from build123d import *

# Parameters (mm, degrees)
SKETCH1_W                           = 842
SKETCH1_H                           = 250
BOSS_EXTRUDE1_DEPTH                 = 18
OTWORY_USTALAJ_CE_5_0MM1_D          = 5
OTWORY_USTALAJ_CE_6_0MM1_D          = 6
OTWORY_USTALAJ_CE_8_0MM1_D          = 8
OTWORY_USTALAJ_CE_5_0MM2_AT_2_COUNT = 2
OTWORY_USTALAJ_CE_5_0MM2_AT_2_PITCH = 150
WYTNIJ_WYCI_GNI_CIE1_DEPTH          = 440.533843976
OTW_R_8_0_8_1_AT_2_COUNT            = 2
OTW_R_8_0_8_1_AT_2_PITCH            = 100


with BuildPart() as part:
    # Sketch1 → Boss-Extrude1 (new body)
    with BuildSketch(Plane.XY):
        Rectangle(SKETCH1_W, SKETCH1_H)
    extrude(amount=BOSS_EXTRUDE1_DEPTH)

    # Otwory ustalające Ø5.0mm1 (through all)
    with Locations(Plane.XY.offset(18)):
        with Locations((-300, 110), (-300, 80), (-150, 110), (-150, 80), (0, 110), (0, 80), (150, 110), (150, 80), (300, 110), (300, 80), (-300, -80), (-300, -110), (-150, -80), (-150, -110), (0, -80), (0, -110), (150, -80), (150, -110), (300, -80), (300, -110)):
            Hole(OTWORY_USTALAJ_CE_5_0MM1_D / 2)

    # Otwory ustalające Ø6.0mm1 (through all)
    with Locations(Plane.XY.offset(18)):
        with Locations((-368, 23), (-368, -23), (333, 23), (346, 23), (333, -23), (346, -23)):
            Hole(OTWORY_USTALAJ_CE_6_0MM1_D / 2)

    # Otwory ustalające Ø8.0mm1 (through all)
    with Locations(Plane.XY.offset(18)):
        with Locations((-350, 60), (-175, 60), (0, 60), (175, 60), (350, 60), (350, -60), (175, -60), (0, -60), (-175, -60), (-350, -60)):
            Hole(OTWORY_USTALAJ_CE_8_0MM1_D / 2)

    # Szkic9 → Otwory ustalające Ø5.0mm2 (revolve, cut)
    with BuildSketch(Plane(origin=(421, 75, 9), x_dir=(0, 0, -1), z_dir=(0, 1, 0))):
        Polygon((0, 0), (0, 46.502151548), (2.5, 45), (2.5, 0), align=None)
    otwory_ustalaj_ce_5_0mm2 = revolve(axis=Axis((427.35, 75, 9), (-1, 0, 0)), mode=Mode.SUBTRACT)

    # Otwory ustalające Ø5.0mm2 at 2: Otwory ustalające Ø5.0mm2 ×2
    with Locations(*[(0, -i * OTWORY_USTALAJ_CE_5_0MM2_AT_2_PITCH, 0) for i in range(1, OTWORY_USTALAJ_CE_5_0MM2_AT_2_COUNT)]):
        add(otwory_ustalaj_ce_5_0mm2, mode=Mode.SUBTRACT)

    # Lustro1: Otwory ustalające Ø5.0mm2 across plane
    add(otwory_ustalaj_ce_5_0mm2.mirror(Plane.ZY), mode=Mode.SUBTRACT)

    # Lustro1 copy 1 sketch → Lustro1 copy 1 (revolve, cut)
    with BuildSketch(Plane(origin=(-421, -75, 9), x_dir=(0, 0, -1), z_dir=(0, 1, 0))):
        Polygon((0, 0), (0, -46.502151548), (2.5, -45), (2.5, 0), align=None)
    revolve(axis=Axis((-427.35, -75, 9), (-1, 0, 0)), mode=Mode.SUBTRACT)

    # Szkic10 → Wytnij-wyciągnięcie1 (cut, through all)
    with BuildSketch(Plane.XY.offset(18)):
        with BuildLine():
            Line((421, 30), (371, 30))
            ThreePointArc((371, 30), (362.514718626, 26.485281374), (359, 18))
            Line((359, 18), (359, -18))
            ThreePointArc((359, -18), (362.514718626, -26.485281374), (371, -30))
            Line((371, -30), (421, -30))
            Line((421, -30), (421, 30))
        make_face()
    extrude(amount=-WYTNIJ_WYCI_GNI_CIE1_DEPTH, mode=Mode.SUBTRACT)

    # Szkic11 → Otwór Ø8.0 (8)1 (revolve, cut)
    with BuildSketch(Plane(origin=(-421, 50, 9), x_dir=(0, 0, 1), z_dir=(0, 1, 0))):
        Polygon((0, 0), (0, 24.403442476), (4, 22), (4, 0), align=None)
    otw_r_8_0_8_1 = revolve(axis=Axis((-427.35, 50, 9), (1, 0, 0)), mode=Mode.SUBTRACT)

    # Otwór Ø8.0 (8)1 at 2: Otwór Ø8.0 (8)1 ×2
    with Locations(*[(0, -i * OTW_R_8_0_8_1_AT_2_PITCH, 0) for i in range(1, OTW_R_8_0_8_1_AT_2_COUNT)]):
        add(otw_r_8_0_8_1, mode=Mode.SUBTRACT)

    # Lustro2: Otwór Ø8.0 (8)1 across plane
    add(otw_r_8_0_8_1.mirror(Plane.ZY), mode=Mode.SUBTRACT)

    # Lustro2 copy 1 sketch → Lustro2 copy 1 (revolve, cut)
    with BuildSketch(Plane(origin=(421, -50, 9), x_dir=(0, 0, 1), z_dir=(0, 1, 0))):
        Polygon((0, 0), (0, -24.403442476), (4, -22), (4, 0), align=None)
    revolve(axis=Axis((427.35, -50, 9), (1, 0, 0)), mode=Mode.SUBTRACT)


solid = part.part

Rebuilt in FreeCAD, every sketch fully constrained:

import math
import FreeCAD as App
import Part
import Sketcher
from FreeCAD import Vector
Q = App.Units.Quantity


def add_polygon(sketch, points):
    """Adds a closed chain of lines whose ends are joined by coincident constraints."""
    first, n = sketch.GeometryCount, len(points)
    for a, b in zip(points, points[1:] + points[:1]):
        sketch.addGeometry(Part.LineSegment(App.Vector(*a, 0), App.Vector(*b, 0)), False)
    for i in range(n):
        sketch.addConstraint(Sketcher.Constraint("Coincident", first + i, 2, first + (i + 1) % n, 1))

doc = App.newDocument("Part")
body = doc.addObject("PartDesign::Body", "Body")

# Sketch on XY plane
sketch1 = body.newObject("Sketcher::SketchObject", "Sketch")
sketch1.AttachmentSupport = (doc.getObject("XY_Plane"), [""])
sketch1.MapMode = "FlatFace"
add_polygon(sketch1, [(-421, 125), (-421, -125), (421, -125), (421, 125)])  # lines 0-3
sketch1.addConstraint(Sketcher.Constraint("Vertical", 0))
sketch1.addConstraint(Sketcher.Constraint("Horizontal", 1))
sketch1.addConstraint(Sketcher.Constraint("Vertical", 2))
sketch1.addConstraint(Sketcher.Constraint("Horizontal", 3))
sketch1.addConstraint(Sketcher.Constraint("Symmetric", 0, 2, 2, 2, -1, 1))
sketch1.addConstraint(Sketcher.Constraint("DistanceX", 1, 1, 1, 2, 842.0))
sketch1.addConstraint(Sketcher.Constraint("DistanceY", 0, 2, 0, 1, 250.0))
pad1 = body.newObject("PartDesign::Pad", "Pad")
pad1.Profile = sketch1
pad1.Length = 18

# Sketch on XY plane
sketch2 = body.newObject("Sketcher::SketchObject", "Sketch001")
sketch2.AttachmentSupport = (doc.getObject("XY_Plane"), [""])
sketch2.MapMode = "FlatFace"
sketch2.AttachmentOffset = App.Placement(Vector(0, 0, 18), App.Rotation())
sketch2.addGeometry(Part.Circle(Vector(-300, 110, 0), Vector(0, 0, 1), 2.5), False)
sketch2.addGeometry(Part.Circle(Vector(-300, 80, 0), Vector(0, 0, 1), 2.5), False)
sketch2.addGeometry(Part.Circle(Vector(-150, 110, 0), Vector(0, 0, 1), 2.5), False)
sketch2.addGeometry(Part.Circle(Vector(-150, 80, 0), Vector(0, 0, 1), 2.5), False)
sketch2.addGeometry(Part.Circle(Vector(0, 110, 0), Vector(0, 0, 1), 2.5), False)
sketch2.addGeometry(Part.Circle(Vector(0, 80, 0), Vector(0, 0, 1), 2.5), False)
sketch2.addGeometry(Part.Circle(Vector(150, 110, 0), Vector(0, 0, 1), 2.5), False)
sketch2.addGeometry(Part.Circle(Vector(150, 80, 0), Vector(0, 0, 1), 2.5), False)
sketch2.addGeometry(Part.Circle(Vector(300, 110, 0), Vector(0, 0, 1), 2.5), False)
sketch2.addGeometry(Part.Circle(Vector(300, 80, 0), Vector(0, 0, 1), 2.5), False)
sketch2.addGeometry(Part.Circle(Vector(-300, -80, 0), Vector(0, 0, 1), 2.5), False)
sketch2.addGeometry(Part.Circle(Vector(-300, -110, 0), Vector(0, 0, 1), 2.5), False)
sketch2.addGeometry(Part.Circle(Vector(-150, -80, 0), Vector(0, 0, 1), 2.5), False)
sketch2.addGeometry(Part.Circle(Vector(-150, -110, 0), Vector(0, 0, 1), 2.5), False)
sketch2.addGeometry(Part.Circle(Vector(0, -80, 0), Vector(0, 0, 1), 2.5), False)
sketch2.addGeometry(Part.Circle(Vector(0, -110, 0), Vector(0, 0, 1), 2.5), False)
sketch2.addGeometry(Part.Circle(Vector(150, -80, 0), Vector(0, 0, 1), 2.5), False)
sketch2.addGeometry(Part.Circle(Vector(150, -110, 0), Vector(0, 0, 1), 2.5), False)
sketch2.addGeometry(Part.Circle(Vector(300, -80, 0), Vector(0, 0, 1), 2.5), False)
sketch2.addGeometry(Part.Circle(Vector(300, -110, 0), Vector(0, 0, 1), 2.5), False)
sketch2.addConstraint(Sketcher.Constraint("Equal", 0, 1))
sketch2.addConstraint(Sketcher.Constraint("Equal", 1, 2))
sketch2.addConstraint(Sketcher.Constraint("Equal", 2, 3))
sketch2.addConstraint(Sketcher.Constraint("Equal", 3, 4))
sketch2.addConstraint(Sketcher.Constraint("Equal", 4, 5))
sketch2.addConstraint(Sketcher.Constraint("Equal", 5, 6))
sketch2.addConstraint(Sketcher.Constraint("Equal", 6, 7))
sketch2.addConstraint(Sketcher.Constraint("Equal", 7, 8))
sketch2.addConstraint(Sketcher.Constraint("Equal", 8, 9))
sketch2.addConstraint(Sketcher.Constraint("Equal", 9, 10))
sketch2.addConstraint(Sketcher.Constraint("Equal", 10, 11))
sketch2.addConstraint(Sketcher.Constraint("Equal", 11, 12))
sketch2.addConstraint(Sketcher.Constraint("Equal", 12, 13))
sketch2.addConstraint(Sketcher.Constraint("Equal", 13, 14))
sketch2.addConstraint(Sketcher.Constraint("Equal", 14, 15))
sketch2.addConstraint(Sketcher.Constraint("Equal", 15, 16))
sketch2.addConstraint(Sketcher.Constraint("Equal", 16, 17))
sketch2.addConstraint(Sketcher.Constraint("Equal", 17, 18))
sketch2.addConstraint(Sketcher.Constraint("Equal", 18, 19))
sketch2.addConstraint(Sketcher.Constraint("Symmetric", 9, 3, 10, 3, -1, 1))
sketch2.addConstraint(Sketcher.Constraint("Symmetric", 8, 3, 11, 3, -1, 1))
sketch2.addConstraint(Sketcher.Constraint("Symmetric", 7, 3, 12, 3, -1, 1))
sketch2.addConstraint(Sketcher.Constraint("Symmetric", 6, 3, 13, 3, -1, 1))
sketch2.addConstraint(Sketcher.Constraint("Symmetric", 5, 3, 14, 3, -1, 1))
sketch2.addConstraint(Sketcher.Constraint("Symmetric", 4, 3, 15, 3, -1, 1))
sketch2.addConstraint(Sketcher.Constraint("Symmetric", 3, 3, 16, 3, -1, 1))
sketch2.addConstraint(Sketcher.Constraint("Symmetric", 2, 3, 17, 3, -1, 1))
sketch2.addConstraint(Sketcher.Constraint("Symmetric", 1, 3, 18, 3, -1, 1))
sketch2.addConstraint(Sketcher.Constraint("Symmetric", 0, 3, 19, 3, -1, 1))
sketch2.addConstraint(Sketcher.Constraint("Symmetric", 2, 3, 6, 3, -2))
sketch2.addConstraint(Sketcher.Constraint("Symmetric", 3, 3, 7, 3, -2))
sketch2.addConstraint(Sketcher.Constraint("Symmetric", 0, 3, 8, 3, -2))
sketch2.addConstraint(Sketcher.Constraint("Symmetric", 1, 3, 9, 3, -2))
sketch2.addConstraint(Sketcher.Constraint("PointOnObject", 4, 3, -2))
sketch2.addConstraint(Sketcher.Constraint("PointOnObject", 5, 3, -2))
sketch2.addConstraint(Sketcher.Constraint("Horizontal", 0, 3, 2, 3))
sketch2.addConstraint(Sketcher.Constraint("Horizontal", 1, 3, 3, 3))
sketch2.addConstraint(Sketcher.Constraint("Horizontal", 2, 3, 4, 3))
sketch2.addConstraint(Sketcher.Constraint("Horizontal", 3, 3, 5, 3))
sketch2.addConstraint(Sketcher.Constraint("Vertical", 0, 3, 1, 3))
sketch2.addConstraint(Sketcher.Constraint("Vertical", 2, 3, 3, 3))
sketch2.addConstraint(Sketcher.Constraint("Diameter", 0, 5.0))
sketch2.addConstraint(Sketcher.Constraint("DistanceX", 0, 3, -1, 1, 300.0))
sketch2.addConstraint(Sketcher.Constraint("DistanceY", -1, 1, 0, 3, 110.0))
sketch2.addConstraint(Sketcher.Constraint("DistanceY", -1, 1, 1, 3, 80.0))
sketch2.addConstraint(Sketcher.Constraint("DistanceX", 2, 3, -1, 1, 150.0))
doc.recompute()
hole = body.newObject("PartDesign::Hole", "Hole")
hole.Profile = sketch2
hole.ThreadType = "None"
hole.Diameter = 5
hole.DepthType = "ThroughAll"

# Sketch on XY plane
sketch3 = body.newObject("Sketcher::SketchObject", "Sketch002")
sketch3.AttachmentSupport = (doc.getObject("XY_Plane"), [""])
sketch3.MapMode = "FlatFace"
sketch3.AttachmentOffset = App.Placement(Vector(0, 0, 18), App.Rotation())
sketch3.addGeometry(Part.Circle(Vector(-368, 23, 0), Vector(0, 0, 1), 3), False)
sketch3.addGeometry(Part.Circle(Vector(-368, -23, 0), Vector(0, 0, 1), 3), False)
sketch3.addGeometry(Part.Circle(Vector(333, 23, 0), Vector(0, 0, 1), 3), False)
sketch3.addGeometry(Part.Circle(Vector(346, 23, 0), Vector(0, 0, 1), 3), False)
sketch3.addGeometry(Part.Circle(Vector(333, -23, 0), Vector(0, 0, 1), 3), False)
sketch3.addGeometry(Part.Circle(Vector(346, -23, 0), Vector(0, 0, 1), 3), False)
sketch3.addConstraint(Sketcher.Constraint("Equal", 0, 1))
sketch3.addConstraint(Sketcher.Constraint("Equal", 1, 2))
sketch3.addConstraint(Sketcher.Constraint("Equal", 2, 3))
sketch3.addConstraint(Sketcher.Constraint("Equal", 3, 4))
sketch3.addConstraint(Sketcher.Constraint("Equal", 4, 5))
sketch3.addConstraint(Sketcher.Constraint("Symmetric", 0, 3, 1, 3, -1))
sketch3.addConstraint(Sketcher.Constraint("Symmetric", 2, 3, 4, 3, -1))
sketch3.addConstraint(Sketcher.Constraint("Symmetric", 3, 3, 5, 3, -1))
sketch3.addConstraint(Sketcher.Constraint("Horizontal", 0, 3, 2, 3))
sketch3.addConstraint(Sketcher.Constraint("Horizontal", 2, 3, 3, 3))
sketch3.addConstraint(Sketcher.Constraint("Diameter", 0, 6.0))
sketch3.addConstraint(Sketcher.Constraint("DistanceX", 0, 3, -1, 1, 368.0))
sketch3.addConstraint(Sketcher.Constraint("DistanceY", -1, 1, 0, 3, 23.0))
sketch3.addConstraint(Sketcher.Constraint("DistanceX", -1, 1, 2, 3, 333.0))
sketch3.addConstraint(Sketcher.Constraint("DistanceX", -1, 1, 3, 3, 346.0))
doc.recompute()
hole2 = body.newObject("PartDesign::Hole", "Hole001")
hole2.Profile = sketch3
hole2.ThreadType = "None"
hole2.Diameter = 6
hole2.DepthType = "ThroughAll"

# Sketch on XY plane
sketch4 = body.newObject("Sketcher::SketchObject", "Sketch003")
sketch4.AttachmentSupport = (doc.getObject("XY_Plane"), [""])
sketch4.MapMode = "FlatFace"
sketch4.AttachmentOffset = App.Placement(Vector(0, 0, 18), App.Rotation())
sketch4.addGeometry(Part.Circle(Vector(-350, 60, 0), Vector(0, 0, 1), 4), False)
sketch4.addGeometry(Part.Circle(Vector(-175, 60, 0), Vector(0, 0, 1), 4), False)
sketch4.addGeometry(Part.Circle(Vector(0, 60, 0), Vector(0, 0, 1), 4), False)
sketch4.addGeometry(Part.Circle(Vector(175, 60, 0), Vector(0, 0, 1), 4), False)
sketch4.addGeometry(Part.Circle(Vector(350, 60, 0), Vector(0, 0, 1), 4), False)
sketch4.addGeometry(Part.Circle(Vector(350, -60, 0), Vector(0, 0, 1), 4), False)
sketch4.addGeometry(Part.Circle(Vector(175, -60, 0), Vector(0, 0, 1), 4), False)
sketch4.addGeometry(Part.Circle(Vector(0, -60, 0), Vector(0, 0, 1), 4), False)
sketch4.addGeometry(Part.Circle(Vector(-175, -60, 0), Vector(0, 0, 1), 4), False)
sketch4.addGeometry(Part.Circle(Vector(-350, -60, 0), Vector(0, 0, 1), 4), False)
sketch4.addConstraint(Sketcher.Constraint("Equal", 0, 1))
sketch4.addConstraint(Sketcher.Constraint("Equal", 1, 2))
sketch4.addConstraint(Sketcher.Constraint("Equal", 2, 3))
sketch4.addConstraint(Sketcher.Constraint("Equal", 3, 4))
sketch4.addConstraint(Sketcher.Constraint("Equal", 4, 5))
sketch4.addConstraint(Sketcher.Constraint("Equal", 5, 6))
sketch4.addConstraint(Sketcher.Constraint("Equal", 6, 7))
sketch4.addConstraint(Sketcher.Constraint("Equal", 7, 8))
sketch4.addConstraint(Sketcher.Constraint("Equal", 8, 9))
sketch4.addConstraint(Sketcher.Constraint("Symmetric", 0, 3, 5, 3, -1, 1))
sketch4.addConstraint(Sketcher.Constraint("Symmetric", 1, 3, 6, 3, -1, 1))
sketch4.addConstraint(Sketcher.Constraint("Symmetric", 2, 3, 7, 3, -1, 1))
sketch4.addConstraint(Sketcher.Constraint("Symmetric", 3, 3, 8, 3, -1, 1))
sketch4.addConstraint(Sketcher.Constraint("Symmetric", 4, 3, 9, 3, -1, 1))
sketch4.addConstraint(Sketcher.Constraint("Symmetric", 1, 3, 3, 3, -2))
sketch4.addConstraint(Sketcher.Constraint("Symmetric", 0, 3, 4, 3, -2))
sketch4.addConstraint(Sketcher.Constraint("PointOnObject", 2, 3, -2))
sketch4.addConstraint(Sketcher.Constraint("Horizontal", 0, 3, 1, 3))
sketch4.addConstraint(Sketcher.Constraint("Horizontal", 1, 3, 2, 3))
sketch4.addConstraint(Sketcher.Constraint("Diameter", 0, 8.0))
sketch4.addConstraint(Sketcher.Constraint("DistanceX", 0, 3, -1, 1, 350.0))
sketch4.addConstraint(Sketcher.Constraint("DistanceY", -1, 1, 0, 3, 60.0))
sketch4.addConstraint(Sketcher.Constraint("DistanceX", 1, 3, -1, 1, 175.0))
doc.recompute()
hole3 = body.newObject("PartDesign::Hole", "Hole002")
hole3.Profile = sketch4
hole3.ThreadType = "None"
hole3.Diameter = 8
hole3.DepthType = "ThroughAll"

# Sketch on XZ plane
sketch5 = body.newObject("Sketcher::SketchObject", "Sketch004")
sketch5.AttachmentSupport = (doc.getObject("XZ_Plane"), [""])
sketch5.MapMode = "FlatFace"
sketch5.AttachmentOffset = App.Placement(Vector(0, 0, -75), App.Rotation())
add_polygon(sketch5, [(374.5, 9), (421, 9), (421, 6.5), (376, 6.5)])  # lines 0-3
sketch5.addGeometry(Part.LineSegment(Vector(421, 9, 0), Vector(374.5, 9, 0)), True)  # axis
sketch5.addConstraint(Sketcher.Constraint("Horizontal", 0))
sketch5.addConstraint(Sketcher.Constraint("Vertical", 1))
sketch5.addConstraint(Sketcher.Constraint("Horizontal", 2))
sketch5.addConstraint(Sketcher.Constraint("Horizontal", 4))
sketch5.addConstraint(Sketcher.Constraint("Coincident", 4, 1, 0, 2))
sketch5.addConstraint(Sketcher.Constraint("Equal", 0, 4))
sketch5.addConstraint(Sketcher.Constraint("DistanceX", 2, 2, 2, 1, 45.0))
sketch5.addConstraint(Sketcher.Constraint("Angle", 3, Q("121 deg")))
sketch5.addConstraint(Sketcher.Constraint("DistanceY", 1, 2, 1, 1, 2.5))
sketch5.addConstraint(Sketcher.Constraint("DistanceX", -1, 1, 0, 2, 421.0))
sketch5.addConstraint(Sketcher.Constraint("DistanceY", -1, 1, 0, 2, 9.0))
groove = body.newObject("PartDesign::Groove", "Groove")
groove.Profile = sketch5
groove.ReferenceAxis = (sketch5, ["Axis0"])
groove.Angle = 360
doc.recompute()

linearpattern = body.newObject("PartDesign::LinearPattern", "LinearPattern")
linearpattern.Originals = [groove]
linearpattern.Direction = (doc.getObject("Y_Axis"), [""])
linearpattern.Mode = "offset"
linearpattern.Offset = 150
linearpattern.Occurrences = 2
linearpattern.Reversed = True
body.Tip = linearpattern
doc.recompute()

mirrored = body.newObject("PartDesign::Mirrored", "Mirrored")
mirrored.Originals = [groove]
mirrored.MirrorPlane = (doc.getObject("YZ_Plane"), [""])
body.Tip = mirrored

# Sketch on XZ plane
sketch6 = body.newObject("Sketcher::SketchObject", "Sketch005")
sketch6.AttachmentSupport = (doc.getObject("XZ_Plane"), [""])
sketch6.MapMode = "FlatFace"
sketch6.AttachmentOffset = App.Placement(Vector(0, 0, 75), App.Rotation())
add_polygon(sketch6, [(-421, 9), (-374.5, 9), (-376, 6.5), (-421, 6.5)])  # lines 0-3
sketch6.addGeometry(Part.LineSegment(Vector(-374.5, 9, 0), Vector(-421, 9, 0)), True)  # axis
sketch6.addConstraint(Sketcher.Constraint("Horizontal", 0))
sketch6.addConstraint(Sketcher.Constraint("Horizontal", 2))
sketch6.addConstraint(Sketcher.Constraint("Vertical", 3))
sketch6.addConstraint(Sketcher.Constraint("Horizontal", 4))
sketch6.addConstraint(Sketcher.Constraint("Coincident", 4, 1, 0, 2))
sketch6.addConstraint(Sketcher.Constraint("Vertical", 2, 2, 4, 2))
sketch6.addConstraint(Sketcher.Constraint("DistanceX", 2, 2, 2, 1, 45.0))
sketch6.addConstraint(Sketcher.Constraint("Angle", 1, Q("-121 deg")))
sketch6.addConstraint(Sketcher.Constraint("DistanceY", 3, 1, 3, 2, 2.5))
sketch6.addConstraint(Sketcher.Constraint("DistanceY", -1, 1, 0, 2, 9.0))
sketch6.addConstraint(Sketcher.Constraint("DistanceX", 1, 2, -1, 1, 376.0))
groove2 = body.newObject("PartDesign::Groove", "Groove001")
groove2.Profile = sketch6
groove2.ReferenceAxis = (sketch6, ["Axis0"])
groove2.Angle = 360

# Sketch on XY plane
sketch7 = body.newObject("Sketcher::SketchObject", "Sketch006")
sketch7.AttachmentSupport = (doc.getObject("XY_Plane"), [""])
sketch7.MapMode = "FlatFace"
sketch7.AttachmentOffset = App.Placement(Vector(0, 0, 18), App.Rotation())
sketch7.addGeometry(Part.LineSegment(Vector(421, 30, 0), Vector(371, 30, 0)), False)
sketch7.addGeometry(Part.ArcOfCircle(Part.Circle(Vector(371, 18, 0), Vector(0, 0, 1), 12), math.radians(90), math.radians(180)), False)
sketch7.addGeometry(Part.LineSegment(Vector(359, 18, 0), Vector(359, -18, 0)), False)
sketch7.addGeometry(Part.ArcOfCircle(Part.Circle(Vector(371, -18, 0), Vector(0, 0, 1), 12), math.radians(-180), math.radians(-90)), False)
sketch7.addGeometry(Part.LineSegment(Vector(371, -30, 0), Vector(421, -30, 0)), False)
sketch7.addGeometry(Part.LineSegment(Vector(421, -30, 0), Vector(421, 30, 0)), False)
sketch7.addConstraint(Sketcher.Constraint("Tangent", 0, 2, 1, 1))
sketch7.addConstraint(Sketcher.Constraint("Tangent", 1, 2, 2, 1))
sketch7.addConstraint(Sketcher.Constraint("Tangent", 2, 2, 3, 1))
sketch7.addConstraint(Sketcher.Constraint("Tangent", 3, 2, 4, 1))
sketch7.addConstraint(Sketcher.Constraint("Coincident", 4, 2, 5, 1))
sketch7.addConstraint(Sketcher.Constraint("Coincident", 5, 2, 0, 1))
sketch7.addConstraint(Sketcher.Constraint("Horizontal", 0))
sketch7.addConstraint(Sketcher.Constraint("Vertical", 2))
sketch7.addConstraint(Sketcher.Constraint("Horizontal", 4))
sketch7.addConstraint(Sketcher.Constraint("Vertical", 5))
sketch7.addConstraint(Sketcher.Constraint("Equal", 1, 3))
sketch7.addConstraint(Sketcher.Constraint("Radius", 1, 12.0))
sketch7.addConstraint(Sketcher.Constraint("DistanceX", 0, 2, 0, 1, 50.0))
sketch7.addConstraint(Sketcher.Constraint("DistanceY", 2, 2, 2, 1, 36.0))
sketch7.addConstraint(Sketcher.Constraint("DistanceX", -1, 1, 1, 3, 371.0))
sketch7.addConstraint(Sketcher.Constraint("DistanceY", -1, 1, 1, 3, 18.0))
pocket1 = body.newObject("PartDesign::Pocket", "Pocket")
pocket1.Profile = sketch7
pocket1.Type = "ThroughAll"

# Sketch on XZ plane
sketch8 = body.newObject("Sketcher::SketchObject", "Sketch007")
sketch8.AttachmentSupport = (doc.getObject("XZ_Plane"), [""])
sketch8.MapMode = "FlatFace"
sketch8.AttachmentOffset = App.Placement(Vector(0, 0, -50), App.Rotation())
add_polygon(sketch8, [(-396.6, 9), (-421, 9), (-421, 13), (-399, 13)])  # lines 0-3
sketch8.addGeometry(Part.LineSegment(Vector(-421, 9, 0), Vector(-396.6, 9, 0)), True)  # axis
sketch8.addConstraint(Sketcher.Constraint("Horizontal", 0))
sketch8.addConstraint(Sketcher.Constraint("Vertical", 1))
sketch8.addConstraint(Sketcher.Constraint("Horizontal", 2))
sketch8.addConstraint(Sketcher.Constraint("Horizontal", 4))
sketch8.addConstraint(Sketcher.Constraint("Coincident", 4, 1, 0, 2))
sketch8.addConstraint(Sketcher.Constraint("Equal", 0, 4))
sketch8.addConstraint(Sketcher.Constraint("DistanceX", 2, 1, 2, 2, 22.0))
sketch8.addConstraint(Sketcher.Constraint("DistanceY", 1, 1, 1, 2, 4.0))
sketch8.addConstraint(Sketcher.Constraint("Angle", 3, Q("-59 deg")))
sketch8.addConstraint(Sketcher.Constraint("DistanceX", 0, 2, -1, 1, 421.0))
sketch8.addConstraint(Sketcher.Constraint("DistanceY", -1, 1, 0, 2, 9.0))
groove3 = body.newObject("PartDesign::Groove", "Groove002")
groove3.Profile = sketch8
groove3.ReferenceAxis = (sketch8, ["Axis0"])
groove3.Angle = 360
doc.recompute()

linearpattern2 = body.newObject("PartDesign::LinearPattern", "LinearPattern001")
linearpattern2.Originals = [groove3]
linearpattern2.Direction = (doc.getObject("Y_Axis"), [""])
linearpattern2.Mode = "offset"
linearpattern2.Offset = 100
linearpattern2.Occurrences = 2
linearpattern2.Reversed = True
body.Tip = linearpattern2
doc.recompute()

mirrored2 = body.newObject("PartDesign::Mirrored", "Mirrored001")
mirrored2.Originals = [groove3]
mirrored2.MirrorPlane = (doc.getObject("YZ_Plane"), [""])
body.Tip = mirrored2

# Sketch on XZ plane
sketch9 = body.newObject("Sketcher::SketchObject", "Sketch008")
sketch9.AttachmentSupport = (doc.getObject("XZ_Plane"), [""])
sketch9.MapMode = "FlatFace"
sketch9.AttachmentOffset = App.Placement(Vector(0, 0, 50), App.Rotation())
add_polygon(sketch9, [(421, 9), (396.6, 9), (399, 13), (421, 13)])  # lines 0-3
sketch9.addGeometry(Part.LineSegment(Vector(396.6, 9, 0), Vector(421, 9, 0)), True)  # axis
sketch9.addConstraint(Sketcher.Constraint("Horizontal", 0))
sketch9.addConstraint(Sketcher.Constraint("Horizontal", 2))
sketch9.addConstraint(Sketcher.Constraint("Vertical", 3))
sketch9.addConstraint(Sketcher.Constraint("Horizontal", 4))
sketch9.addConstraint(Sketcher.Constraint("Coincident", 4, 1, 0, 2))
sketch9.addConstraint(Sketcher.Constraint("Vertical", 2, 2, 4, 2))
sketch9.addConstraint(Sketcher.Constraint("DistanceX", 2, 1, 2, 2, 22.0))
sketch9.addConstraint(Sketcher.Constraint("DistanceY", 3, 2, 3, 1, 4.0))
sketch9.addConstraint(Sketcher.Constraint("Angle", 1, Q("59 deg")))
sketch9.addConstraint(Sketcher.Constraint("DistanceY", -1, 1, 0, 2, 9.0))
sketch9.addConstraint(Sketcher.Constraint("DistanceX", -1, 1, 1, 2, 399.0))
groove4 = body.newObject("PartDesign::Groove", "Groove003")
groove4.Profile = sketch9
groove4.ReferenceAxis = (sketch9, ["Axis0"])
groove4.Angle = 360

doc.recompute()
